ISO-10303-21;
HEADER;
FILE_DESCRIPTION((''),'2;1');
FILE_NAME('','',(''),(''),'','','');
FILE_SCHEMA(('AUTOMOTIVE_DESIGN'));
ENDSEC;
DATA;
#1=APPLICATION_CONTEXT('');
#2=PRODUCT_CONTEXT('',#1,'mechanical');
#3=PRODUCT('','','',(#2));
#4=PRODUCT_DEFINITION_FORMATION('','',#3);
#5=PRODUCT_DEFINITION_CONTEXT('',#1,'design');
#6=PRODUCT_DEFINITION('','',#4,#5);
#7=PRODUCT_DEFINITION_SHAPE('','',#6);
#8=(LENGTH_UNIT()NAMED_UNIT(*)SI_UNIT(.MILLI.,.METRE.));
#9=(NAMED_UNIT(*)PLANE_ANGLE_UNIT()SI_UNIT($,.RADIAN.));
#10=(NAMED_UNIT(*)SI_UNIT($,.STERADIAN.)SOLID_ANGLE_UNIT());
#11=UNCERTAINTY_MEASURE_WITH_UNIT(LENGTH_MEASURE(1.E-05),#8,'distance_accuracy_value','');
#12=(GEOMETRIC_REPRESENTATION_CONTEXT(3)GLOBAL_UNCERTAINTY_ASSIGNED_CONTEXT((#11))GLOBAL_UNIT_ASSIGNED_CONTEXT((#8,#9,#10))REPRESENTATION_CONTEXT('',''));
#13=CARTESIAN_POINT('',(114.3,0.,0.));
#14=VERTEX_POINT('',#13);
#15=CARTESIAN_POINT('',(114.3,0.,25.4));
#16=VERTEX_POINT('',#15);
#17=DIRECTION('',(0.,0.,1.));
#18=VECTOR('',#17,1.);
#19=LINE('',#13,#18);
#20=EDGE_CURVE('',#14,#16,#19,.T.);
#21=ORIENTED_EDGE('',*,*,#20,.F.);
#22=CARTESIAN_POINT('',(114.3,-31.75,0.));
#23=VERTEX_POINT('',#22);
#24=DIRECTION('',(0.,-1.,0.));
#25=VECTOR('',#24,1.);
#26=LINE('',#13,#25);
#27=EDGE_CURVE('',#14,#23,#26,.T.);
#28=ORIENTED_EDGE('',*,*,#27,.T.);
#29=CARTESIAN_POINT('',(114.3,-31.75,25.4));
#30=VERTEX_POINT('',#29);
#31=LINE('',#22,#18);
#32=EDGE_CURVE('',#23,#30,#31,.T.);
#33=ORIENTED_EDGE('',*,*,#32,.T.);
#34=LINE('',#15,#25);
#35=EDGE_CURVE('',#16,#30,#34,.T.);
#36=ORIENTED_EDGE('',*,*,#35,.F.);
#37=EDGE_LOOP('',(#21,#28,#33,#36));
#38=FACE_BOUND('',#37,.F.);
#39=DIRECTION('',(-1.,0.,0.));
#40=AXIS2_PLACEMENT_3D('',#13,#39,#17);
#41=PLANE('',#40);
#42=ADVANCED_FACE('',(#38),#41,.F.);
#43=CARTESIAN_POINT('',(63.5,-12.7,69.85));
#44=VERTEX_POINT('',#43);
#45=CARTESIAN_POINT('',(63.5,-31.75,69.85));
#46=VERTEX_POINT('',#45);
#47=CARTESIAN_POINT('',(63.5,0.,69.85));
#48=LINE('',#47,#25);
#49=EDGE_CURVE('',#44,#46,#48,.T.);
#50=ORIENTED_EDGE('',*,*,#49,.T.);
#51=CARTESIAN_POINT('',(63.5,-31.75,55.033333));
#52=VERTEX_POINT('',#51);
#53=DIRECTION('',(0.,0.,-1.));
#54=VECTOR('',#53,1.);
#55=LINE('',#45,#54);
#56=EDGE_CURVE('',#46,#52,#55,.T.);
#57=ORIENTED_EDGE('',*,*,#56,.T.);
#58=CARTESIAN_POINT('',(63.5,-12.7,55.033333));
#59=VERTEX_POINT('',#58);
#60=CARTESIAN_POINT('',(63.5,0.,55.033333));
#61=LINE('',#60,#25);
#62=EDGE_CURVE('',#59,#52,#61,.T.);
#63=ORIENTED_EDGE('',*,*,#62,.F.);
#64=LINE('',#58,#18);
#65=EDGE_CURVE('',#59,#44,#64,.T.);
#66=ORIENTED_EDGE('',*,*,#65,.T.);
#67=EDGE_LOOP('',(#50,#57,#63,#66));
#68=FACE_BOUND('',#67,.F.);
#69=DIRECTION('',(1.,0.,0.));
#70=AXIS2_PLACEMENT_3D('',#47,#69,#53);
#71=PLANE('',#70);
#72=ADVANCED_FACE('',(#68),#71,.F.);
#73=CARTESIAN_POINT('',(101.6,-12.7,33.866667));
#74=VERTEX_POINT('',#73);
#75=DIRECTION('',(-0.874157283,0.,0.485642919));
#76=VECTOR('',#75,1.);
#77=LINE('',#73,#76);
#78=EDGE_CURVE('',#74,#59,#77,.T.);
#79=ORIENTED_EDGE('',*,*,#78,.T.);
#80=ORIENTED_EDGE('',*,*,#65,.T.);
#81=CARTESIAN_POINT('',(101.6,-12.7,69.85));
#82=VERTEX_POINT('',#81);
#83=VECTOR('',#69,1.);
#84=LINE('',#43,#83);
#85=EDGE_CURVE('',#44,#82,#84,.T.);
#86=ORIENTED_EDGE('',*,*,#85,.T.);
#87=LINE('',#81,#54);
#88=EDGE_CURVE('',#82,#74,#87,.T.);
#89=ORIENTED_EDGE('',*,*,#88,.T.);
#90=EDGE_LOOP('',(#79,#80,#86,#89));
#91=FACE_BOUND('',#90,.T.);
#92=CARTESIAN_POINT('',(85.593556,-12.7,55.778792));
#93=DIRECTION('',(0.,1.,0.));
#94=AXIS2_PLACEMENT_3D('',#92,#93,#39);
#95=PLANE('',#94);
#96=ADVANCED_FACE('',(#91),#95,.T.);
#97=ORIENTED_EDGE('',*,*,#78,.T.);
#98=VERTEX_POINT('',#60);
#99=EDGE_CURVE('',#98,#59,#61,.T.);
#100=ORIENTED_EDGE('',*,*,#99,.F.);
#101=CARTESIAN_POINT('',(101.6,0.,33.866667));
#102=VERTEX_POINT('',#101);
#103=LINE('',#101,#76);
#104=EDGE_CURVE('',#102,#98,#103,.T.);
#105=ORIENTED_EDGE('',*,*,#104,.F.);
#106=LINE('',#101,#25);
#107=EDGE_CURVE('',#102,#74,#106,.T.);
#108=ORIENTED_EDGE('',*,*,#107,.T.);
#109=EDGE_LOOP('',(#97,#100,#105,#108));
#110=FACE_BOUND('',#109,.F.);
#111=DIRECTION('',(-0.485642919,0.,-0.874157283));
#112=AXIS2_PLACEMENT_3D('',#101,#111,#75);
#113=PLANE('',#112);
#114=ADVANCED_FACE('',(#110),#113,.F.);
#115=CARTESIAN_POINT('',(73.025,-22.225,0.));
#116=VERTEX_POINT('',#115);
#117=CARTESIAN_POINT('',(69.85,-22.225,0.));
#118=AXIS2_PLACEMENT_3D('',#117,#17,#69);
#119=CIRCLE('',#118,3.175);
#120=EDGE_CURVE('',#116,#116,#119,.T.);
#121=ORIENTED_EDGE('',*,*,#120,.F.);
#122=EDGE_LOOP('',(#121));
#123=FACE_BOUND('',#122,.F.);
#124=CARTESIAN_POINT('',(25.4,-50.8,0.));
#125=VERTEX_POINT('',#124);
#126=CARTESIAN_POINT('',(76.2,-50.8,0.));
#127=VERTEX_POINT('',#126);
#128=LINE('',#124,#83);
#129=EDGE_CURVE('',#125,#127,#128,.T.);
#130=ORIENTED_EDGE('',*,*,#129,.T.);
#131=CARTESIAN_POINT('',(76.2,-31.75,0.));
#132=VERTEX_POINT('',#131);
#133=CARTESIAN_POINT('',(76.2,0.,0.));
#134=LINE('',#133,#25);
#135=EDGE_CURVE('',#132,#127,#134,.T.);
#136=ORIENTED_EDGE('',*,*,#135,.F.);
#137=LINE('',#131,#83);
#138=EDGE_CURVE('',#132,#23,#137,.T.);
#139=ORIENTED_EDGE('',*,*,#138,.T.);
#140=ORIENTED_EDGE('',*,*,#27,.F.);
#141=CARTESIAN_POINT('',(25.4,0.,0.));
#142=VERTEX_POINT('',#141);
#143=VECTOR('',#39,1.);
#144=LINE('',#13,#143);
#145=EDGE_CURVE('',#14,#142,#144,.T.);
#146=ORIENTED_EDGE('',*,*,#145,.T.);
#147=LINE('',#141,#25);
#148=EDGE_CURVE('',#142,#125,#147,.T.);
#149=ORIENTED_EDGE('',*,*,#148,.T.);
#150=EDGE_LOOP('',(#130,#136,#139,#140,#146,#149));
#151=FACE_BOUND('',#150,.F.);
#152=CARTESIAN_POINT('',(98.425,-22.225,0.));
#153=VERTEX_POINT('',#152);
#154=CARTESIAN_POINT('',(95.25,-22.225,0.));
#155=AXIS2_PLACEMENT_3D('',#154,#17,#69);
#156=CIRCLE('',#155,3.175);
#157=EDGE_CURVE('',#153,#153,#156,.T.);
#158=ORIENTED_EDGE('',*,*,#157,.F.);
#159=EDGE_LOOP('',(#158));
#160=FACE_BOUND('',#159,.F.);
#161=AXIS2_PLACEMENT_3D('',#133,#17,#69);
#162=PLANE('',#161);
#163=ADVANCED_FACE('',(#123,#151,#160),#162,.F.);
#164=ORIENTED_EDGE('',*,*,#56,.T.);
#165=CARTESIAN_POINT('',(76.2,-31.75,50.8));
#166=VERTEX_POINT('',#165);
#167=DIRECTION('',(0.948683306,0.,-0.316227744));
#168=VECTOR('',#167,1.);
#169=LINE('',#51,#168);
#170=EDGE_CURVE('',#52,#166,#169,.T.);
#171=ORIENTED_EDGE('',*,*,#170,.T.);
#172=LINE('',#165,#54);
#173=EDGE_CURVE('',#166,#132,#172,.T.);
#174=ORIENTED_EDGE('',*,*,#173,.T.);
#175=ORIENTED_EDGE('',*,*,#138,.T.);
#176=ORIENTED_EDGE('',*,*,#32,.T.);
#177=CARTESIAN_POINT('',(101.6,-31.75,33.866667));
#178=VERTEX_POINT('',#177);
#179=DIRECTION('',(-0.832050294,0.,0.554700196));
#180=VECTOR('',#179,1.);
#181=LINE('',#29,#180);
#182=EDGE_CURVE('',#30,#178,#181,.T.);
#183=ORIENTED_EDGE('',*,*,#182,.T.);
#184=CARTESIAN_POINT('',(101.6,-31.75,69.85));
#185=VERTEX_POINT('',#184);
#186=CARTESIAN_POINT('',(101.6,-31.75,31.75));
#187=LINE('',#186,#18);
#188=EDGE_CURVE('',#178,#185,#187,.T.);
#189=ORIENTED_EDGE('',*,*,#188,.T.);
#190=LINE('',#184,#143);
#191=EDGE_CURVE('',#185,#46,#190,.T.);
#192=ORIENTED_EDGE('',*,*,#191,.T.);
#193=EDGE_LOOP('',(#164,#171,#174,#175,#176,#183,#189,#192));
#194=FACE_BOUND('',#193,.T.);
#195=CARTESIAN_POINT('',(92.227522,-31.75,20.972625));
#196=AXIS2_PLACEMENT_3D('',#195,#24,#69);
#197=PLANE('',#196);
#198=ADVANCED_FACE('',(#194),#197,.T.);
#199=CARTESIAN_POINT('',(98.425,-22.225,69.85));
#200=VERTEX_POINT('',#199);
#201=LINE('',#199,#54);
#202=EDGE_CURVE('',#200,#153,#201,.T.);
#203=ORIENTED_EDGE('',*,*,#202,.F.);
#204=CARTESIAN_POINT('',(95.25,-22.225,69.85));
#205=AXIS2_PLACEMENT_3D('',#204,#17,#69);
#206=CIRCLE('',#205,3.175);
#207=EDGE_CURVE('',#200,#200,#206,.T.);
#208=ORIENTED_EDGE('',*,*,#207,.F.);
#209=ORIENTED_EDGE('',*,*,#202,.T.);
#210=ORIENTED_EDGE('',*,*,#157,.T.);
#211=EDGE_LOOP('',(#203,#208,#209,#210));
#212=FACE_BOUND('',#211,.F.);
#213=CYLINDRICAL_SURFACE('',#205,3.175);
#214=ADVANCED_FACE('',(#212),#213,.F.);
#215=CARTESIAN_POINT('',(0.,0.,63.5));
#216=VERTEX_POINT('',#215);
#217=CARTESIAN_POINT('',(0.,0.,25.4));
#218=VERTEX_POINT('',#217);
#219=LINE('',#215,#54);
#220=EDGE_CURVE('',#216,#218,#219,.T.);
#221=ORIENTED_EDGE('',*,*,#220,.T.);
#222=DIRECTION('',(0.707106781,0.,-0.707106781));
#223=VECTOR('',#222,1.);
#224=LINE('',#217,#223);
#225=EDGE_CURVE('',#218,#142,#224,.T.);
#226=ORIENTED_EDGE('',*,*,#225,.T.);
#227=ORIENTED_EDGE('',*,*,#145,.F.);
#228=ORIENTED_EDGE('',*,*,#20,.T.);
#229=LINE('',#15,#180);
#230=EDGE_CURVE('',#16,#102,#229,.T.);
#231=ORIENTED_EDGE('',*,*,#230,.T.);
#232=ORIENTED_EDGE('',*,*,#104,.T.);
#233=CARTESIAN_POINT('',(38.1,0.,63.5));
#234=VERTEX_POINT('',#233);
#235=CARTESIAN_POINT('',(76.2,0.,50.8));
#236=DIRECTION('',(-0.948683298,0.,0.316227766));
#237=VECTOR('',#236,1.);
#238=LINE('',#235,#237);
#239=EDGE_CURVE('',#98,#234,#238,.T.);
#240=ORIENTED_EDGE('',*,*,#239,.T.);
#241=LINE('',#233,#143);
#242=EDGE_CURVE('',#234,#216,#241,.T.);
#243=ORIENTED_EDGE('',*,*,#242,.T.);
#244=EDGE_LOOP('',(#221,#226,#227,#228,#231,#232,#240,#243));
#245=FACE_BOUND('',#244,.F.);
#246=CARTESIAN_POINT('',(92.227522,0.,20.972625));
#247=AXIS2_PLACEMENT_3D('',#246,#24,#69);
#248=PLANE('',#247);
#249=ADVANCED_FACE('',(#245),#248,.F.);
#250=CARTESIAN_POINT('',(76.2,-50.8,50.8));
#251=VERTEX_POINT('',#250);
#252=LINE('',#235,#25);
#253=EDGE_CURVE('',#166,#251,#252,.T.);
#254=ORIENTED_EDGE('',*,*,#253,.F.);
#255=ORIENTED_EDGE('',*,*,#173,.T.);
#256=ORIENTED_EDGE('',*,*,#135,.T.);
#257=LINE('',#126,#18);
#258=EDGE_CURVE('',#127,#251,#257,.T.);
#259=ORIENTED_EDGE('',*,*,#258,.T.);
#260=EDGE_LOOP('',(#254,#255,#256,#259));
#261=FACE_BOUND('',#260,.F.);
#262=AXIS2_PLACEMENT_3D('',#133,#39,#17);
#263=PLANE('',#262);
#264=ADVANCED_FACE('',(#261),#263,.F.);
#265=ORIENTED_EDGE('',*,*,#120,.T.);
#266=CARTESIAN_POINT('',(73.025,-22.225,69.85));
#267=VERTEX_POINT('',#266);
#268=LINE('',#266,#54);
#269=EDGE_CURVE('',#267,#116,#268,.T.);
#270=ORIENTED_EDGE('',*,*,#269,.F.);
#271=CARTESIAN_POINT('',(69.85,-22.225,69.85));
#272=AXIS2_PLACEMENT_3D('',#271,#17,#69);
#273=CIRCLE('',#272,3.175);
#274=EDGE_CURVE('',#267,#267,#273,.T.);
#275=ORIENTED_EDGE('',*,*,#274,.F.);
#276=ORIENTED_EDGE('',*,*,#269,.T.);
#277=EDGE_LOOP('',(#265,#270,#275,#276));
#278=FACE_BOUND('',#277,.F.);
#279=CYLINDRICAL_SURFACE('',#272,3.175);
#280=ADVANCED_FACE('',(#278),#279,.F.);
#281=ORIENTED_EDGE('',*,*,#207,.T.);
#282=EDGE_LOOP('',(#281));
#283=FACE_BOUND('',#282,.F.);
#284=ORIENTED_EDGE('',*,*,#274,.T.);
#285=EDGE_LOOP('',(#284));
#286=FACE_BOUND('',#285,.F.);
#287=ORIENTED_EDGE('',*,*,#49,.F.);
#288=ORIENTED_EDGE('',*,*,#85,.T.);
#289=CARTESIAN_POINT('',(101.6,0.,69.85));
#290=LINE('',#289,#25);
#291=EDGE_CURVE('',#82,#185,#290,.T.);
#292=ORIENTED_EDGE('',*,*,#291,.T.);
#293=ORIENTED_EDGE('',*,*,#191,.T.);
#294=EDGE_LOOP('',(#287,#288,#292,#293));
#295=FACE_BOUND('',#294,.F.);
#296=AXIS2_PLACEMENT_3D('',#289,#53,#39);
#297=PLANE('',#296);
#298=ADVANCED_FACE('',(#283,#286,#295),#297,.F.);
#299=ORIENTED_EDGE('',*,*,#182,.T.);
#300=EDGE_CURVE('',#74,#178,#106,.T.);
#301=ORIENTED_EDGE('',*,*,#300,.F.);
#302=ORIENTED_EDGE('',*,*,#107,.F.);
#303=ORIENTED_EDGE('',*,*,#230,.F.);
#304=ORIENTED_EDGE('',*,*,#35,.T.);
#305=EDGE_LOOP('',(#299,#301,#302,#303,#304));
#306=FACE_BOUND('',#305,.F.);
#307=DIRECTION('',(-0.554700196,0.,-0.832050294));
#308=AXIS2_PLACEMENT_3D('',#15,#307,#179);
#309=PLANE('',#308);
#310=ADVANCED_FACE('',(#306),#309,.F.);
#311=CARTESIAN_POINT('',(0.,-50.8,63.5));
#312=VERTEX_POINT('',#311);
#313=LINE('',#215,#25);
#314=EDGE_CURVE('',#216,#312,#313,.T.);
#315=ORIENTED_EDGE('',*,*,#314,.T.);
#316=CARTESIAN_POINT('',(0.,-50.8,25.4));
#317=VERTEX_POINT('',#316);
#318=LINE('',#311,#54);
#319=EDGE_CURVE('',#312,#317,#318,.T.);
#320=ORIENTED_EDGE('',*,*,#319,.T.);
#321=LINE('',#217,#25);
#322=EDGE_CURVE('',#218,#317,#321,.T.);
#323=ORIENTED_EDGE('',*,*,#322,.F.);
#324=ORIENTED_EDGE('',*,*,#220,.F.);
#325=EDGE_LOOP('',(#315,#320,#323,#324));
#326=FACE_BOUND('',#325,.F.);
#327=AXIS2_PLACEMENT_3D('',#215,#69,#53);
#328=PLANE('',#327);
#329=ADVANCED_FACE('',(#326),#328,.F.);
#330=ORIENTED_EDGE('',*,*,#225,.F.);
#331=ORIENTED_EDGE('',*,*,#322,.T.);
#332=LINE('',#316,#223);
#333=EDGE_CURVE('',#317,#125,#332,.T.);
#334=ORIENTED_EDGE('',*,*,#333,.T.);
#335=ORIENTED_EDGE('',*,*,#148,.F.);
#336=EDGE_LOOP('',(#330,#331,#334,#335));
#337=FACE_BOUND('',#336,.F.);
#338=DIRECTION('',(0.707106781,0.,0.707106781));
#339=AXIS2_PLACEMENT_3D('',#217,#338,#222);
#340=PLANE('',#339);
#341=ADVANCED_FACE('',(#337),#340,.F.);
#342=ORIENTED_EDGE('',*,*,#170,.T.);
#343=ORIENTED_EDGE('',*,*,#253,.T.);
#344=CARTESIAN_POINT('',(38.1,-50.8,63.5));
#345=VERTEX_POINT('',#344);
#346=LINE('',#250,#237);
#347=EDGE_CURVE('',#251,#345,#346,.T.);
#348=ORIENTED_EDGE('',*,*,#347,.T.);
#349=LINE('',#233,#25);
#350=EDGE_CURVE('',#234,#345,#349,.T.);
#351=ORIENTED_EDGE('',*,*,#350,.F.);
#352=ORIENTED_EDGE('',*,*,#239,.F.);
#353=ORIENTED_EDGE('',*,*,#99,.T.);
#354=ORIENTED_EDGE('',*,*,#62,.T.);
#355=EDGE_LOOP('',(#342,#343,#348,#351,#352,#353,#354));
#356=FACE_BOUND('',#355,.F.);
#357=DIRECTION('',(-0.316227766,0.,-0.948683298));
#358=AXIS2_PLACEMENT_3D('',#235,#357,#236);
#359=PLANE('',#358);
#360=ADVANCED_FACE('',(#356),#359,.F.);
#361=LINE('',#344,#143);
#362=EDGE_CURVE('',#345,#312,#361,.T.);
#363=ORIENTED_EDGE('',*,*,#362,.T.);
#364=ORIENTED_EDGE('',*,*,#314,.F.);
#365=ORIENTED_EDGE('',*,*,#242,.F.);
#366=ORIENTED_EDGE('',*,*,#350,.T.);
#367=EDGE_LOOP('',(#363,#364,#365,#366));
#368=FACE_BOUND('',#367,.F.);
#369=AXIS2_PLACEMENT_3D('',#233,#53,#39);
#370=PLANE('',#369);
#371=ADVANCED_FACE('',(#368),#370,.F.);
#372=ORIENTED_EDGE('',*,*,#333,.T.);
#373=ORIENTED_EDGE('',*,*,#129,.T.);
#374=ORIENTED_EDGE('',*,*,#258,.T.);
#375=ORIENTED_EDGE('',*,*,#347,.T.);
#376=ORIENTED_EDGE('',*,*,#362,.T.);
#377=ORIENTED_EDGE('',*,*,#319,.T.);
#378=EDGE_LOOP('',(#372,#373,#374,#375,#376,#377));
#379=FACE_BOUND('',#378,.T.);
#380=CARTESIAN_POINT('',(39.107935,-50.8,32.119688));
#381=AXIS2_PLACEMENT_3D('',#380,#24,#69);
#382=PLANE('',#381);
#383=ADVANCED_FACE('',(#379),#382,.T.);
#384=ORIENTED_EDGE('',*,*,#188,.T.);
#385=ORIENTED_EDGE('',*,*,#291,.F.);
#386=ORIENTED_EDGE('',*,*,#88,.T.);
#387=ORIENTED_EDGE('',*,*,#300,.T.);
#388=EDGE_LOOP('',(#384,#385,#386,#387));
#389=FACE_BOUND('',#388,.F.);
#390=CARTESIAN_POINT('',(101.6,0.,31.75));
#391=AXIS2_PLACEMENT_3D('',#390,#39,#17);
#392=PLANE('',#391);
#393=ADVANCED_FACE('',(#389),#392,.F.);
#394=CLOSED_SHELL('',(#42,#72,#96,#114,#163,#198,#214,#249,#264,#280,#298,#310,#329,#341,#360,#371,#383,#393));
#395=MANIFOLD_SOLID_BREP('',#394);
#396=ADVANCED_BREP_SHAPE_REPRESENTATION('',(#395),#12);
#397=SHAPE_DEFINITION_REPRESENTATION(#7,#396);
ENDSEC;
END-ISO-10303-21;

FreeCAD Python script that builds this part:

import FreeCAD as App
import Part
import Sketcher
Q = App.Units.Quantity


def add_polygon(sketch, points):
    """Adds a closed chain of lines whose ends are joined by coincident constraints."""
    first, n = sketch.GeometryCount, len(points)
    for a, b in zip(points, points[1:] + points[:1]):
        sketch.addGeometry(Part.LineSegment(App.Vector(*a, 0), App.Vector(*b, 0)), False)
    for i in range(n):
        sketch.addConstraint(Sketcher.Constraint("Coincident", first + i, 2, first + (i + 1) % n, 1))

doc = App.newDocument("Part")
body = doc.addObject("PartDesign::Body", "Body")

sketch1 = body.newObject("Sketcher::SketchObject", "Sketch")
sketch1.AttachmentSupport = (doc.getObject("XZ_Plane"), [""])
sketch1.MapMode = "FlatFace"
add_polygon(sketch1, [(0, 25), (25, 0), (76, 0), (76, 51), (38, 64), (0, 64)])
sketch1.addConstraint([
    Sketcher.Constraint("Horizontal", 1),
    Sketcher.Constraint("Vertical", 2),
    Sketcher.Constraint("Horizontal", 4),
    Sketcher.Constraint("Vertical", 5),
    Sketcher.Constraint("PointOnObject", 0, 2, -1),
    Sketcher.Constraint("PointOnObject", 4, 2, -2),
    Sketcher.Constraint("Equal", 1, 2),
    Sketcher.Constraint("Equal", 4, 5),
    Sketcher.Constraint("DistanceX", 1, 1, 1, 2, Q("2 in")),
    Sketcher.Constraint("DistanceX", 4, 2, 4, 1, Q("1.5 in")),
    Sketcher.Constraint("DistanceX", -1, 1, 0, 2, Q("1 in")),
    Sketcher.Constraint("DistanceY", -1, 1, 5, 2, Q("1 in")),
])
pad1 = body.newObject("PartDesign::Pad", "Pad")
pad1.Profile = sketch1
pad1.Length = Q("2 in")

sketch2 = body.newObject("Sketcher::SketchObject", "Sketch001")
sketch2.AttachmentSupport = (doc.getObject("XZ_Plane"), [""])
sketch2.MapMode = "FlatFace"
add_polygon(sketch2, [(64, 70), (64, 55), (76, 51), (76, 32), (102, 32), (102, 70)])
sketch2.addConstraint([
    Sketcher.Constraint("Vertical", 0),
    Sketcher.Constraint("Vertical", 2),
    Sketcher.Constraint("Horizontal", 3),
    Sketcher.Constraint("Vertical", 4),
    Sketcher.Constraint("Horizontal", 5),
    Sketcher.Constraint("Equal", 5, 4),
    Sketcher.Constraint("DistanceX", 3, 1, 3, 2, Q("1 in")),
    Sketcher.Constraint("DistanceX", 5, 2, 5, 1, Q("1.5 in")),
    Sketcher.Constraint("DistanceX", -1, 1, 1, 2, Q("3 in")),
    Sketcher.Constraint("DistanceY", -1, 1, 1, 2, Q("2 in")),
    Sketcher.Constraint("DistanceY", 2, 2, 2, 1, Q("0.75 in")),
    Sketcher.Constraint("DistanceY", 0, 2, 0, 1, 14.816667),
])
pad2 = body.newObject("PartDesign::Pad", "Pad001")
pad2.Profile = sketch2
pad2.Length = Q("1.25 in")

sketch3 = body.newObject("Sketcher::SketchObject", "Sketch002")
sketch3.AttachmentSupport = (doc.getObject("XZ_Plane"), [""])
sketch3.MapMode = "FlatFace"
add_polygon(sketch3, [(114, 25), (76, 51), (76, 0), (114, 0)])
sketch3.addConstraint([
    Sketcher.Constraint("Vertical", 1),
    Sketcher.Constraint("Horizontal", 2),
    Sketcher.Constraint("Vertical", 3),
    Sketcher.Constraint("PointOnObject", 1, 2, -1),
    Sketcher.Constraint("DistanceY", 1, 2, 1, 1, Q("2 in")),
    Sketcher.Constraint("DistanceY", 3, 1, 3, 2, Q("1 in")),
    Sketcher.Constraint("DistanceX", 2, 1, 2, 2, Q("1.5 in")),
    Sketcher.Constraint("DistanceX", -1, 1, 0, 2, Q("3 in")),
])
pad3 = body.newObject("PartDesign::Pad", "Pad002")
pad3.Profile = sketch3
pad3.Length = Q("1.25 in")

sketch4 = body.newObject("Sketcher::SketchObject", "Sketch003")
sketch4.AttachmentSupport = (doc.getObject("XZ_Plane"), [""])
sketch4.MapMode = "FlatFace"
add_polygon(sketch4, [(102, 70), (102, 34), (64, 55), (64, 70)])
sketch4.addConstraint([
    Sketcher.Constraint("Vertical", 0),
    Sketcher.Constraint("Vertical", 2),
    Sketcher.Constraint("Horizontal", 3),
    Sketcher.Constraint("DistanceX", 3, 1, 3, 2, Q("1.5 in")),
    Sketcher.Constraint("DistanceX", -1, 1, 0, 2, Q("4 in")),
    Sketcher.Constraint("DistanceY", -1, 1, 2, 2, Q("2.75 in")),
    Sketcher.Constraint("DistanceY", 0, 2, 0, 1, 35.983333),
    Sketcher.Constraint("DistanceY", 2, 1, 2, 2, 14.816667),
])
pocket1 = body.newObject("PartDesign::Pocket", "Pocket")
pocket1.Profile = sketch4
pocket1.Length = Q("0.5 in")
pocket1.Reversed = True

sketch5 = body.newObject("Sketcher::SketchObject", "Sketch004")
sketch5.AttachmentSupport = (doc.getObject("XY_Plane"), [""])
sketch5.MapMode = "FlatFace"
sketch5.AttachmentOffset = App.Placement(App.Vector(0, 0, 2.75 * 25.4), App.Rotation())
sketch5.addGeometry([
    Part.Circle(App.Vector(69.8, -22.2, 0), App.Vector(0, 0, 1), 3.2),
    Part.Circle(App.Vector(95.2, -22.2, 0), App.Vector(0, 0, 1), 3.2),
], False)
sketch5.addConstraint([
    Sketcher.Constraint("Equal", 0, 1),
    Sketcher.Constraint("Horizontal", 0, 3, 1, 3),
    Sketcher.Constraint("Diameter", 0, Q("0.25 in")),
    Sketcher.Constraint("DistanceX", 0, 3, 1, 3, Q("1 in")),
    Sketcher.Constraint("DistanceX", -1, 1, 0, 3, Q("2.75 in")),
    Sketcher.Constraint("DistanceY", 0, 3, -1, 1, Q("0.875 in")),
])
pocket2 = body.newObject("PartDesign::Pocket", "Pocket001")
pocket2.Profile = sketch5
pocket2.Type = "ThroughAll"

doc.recompute()
